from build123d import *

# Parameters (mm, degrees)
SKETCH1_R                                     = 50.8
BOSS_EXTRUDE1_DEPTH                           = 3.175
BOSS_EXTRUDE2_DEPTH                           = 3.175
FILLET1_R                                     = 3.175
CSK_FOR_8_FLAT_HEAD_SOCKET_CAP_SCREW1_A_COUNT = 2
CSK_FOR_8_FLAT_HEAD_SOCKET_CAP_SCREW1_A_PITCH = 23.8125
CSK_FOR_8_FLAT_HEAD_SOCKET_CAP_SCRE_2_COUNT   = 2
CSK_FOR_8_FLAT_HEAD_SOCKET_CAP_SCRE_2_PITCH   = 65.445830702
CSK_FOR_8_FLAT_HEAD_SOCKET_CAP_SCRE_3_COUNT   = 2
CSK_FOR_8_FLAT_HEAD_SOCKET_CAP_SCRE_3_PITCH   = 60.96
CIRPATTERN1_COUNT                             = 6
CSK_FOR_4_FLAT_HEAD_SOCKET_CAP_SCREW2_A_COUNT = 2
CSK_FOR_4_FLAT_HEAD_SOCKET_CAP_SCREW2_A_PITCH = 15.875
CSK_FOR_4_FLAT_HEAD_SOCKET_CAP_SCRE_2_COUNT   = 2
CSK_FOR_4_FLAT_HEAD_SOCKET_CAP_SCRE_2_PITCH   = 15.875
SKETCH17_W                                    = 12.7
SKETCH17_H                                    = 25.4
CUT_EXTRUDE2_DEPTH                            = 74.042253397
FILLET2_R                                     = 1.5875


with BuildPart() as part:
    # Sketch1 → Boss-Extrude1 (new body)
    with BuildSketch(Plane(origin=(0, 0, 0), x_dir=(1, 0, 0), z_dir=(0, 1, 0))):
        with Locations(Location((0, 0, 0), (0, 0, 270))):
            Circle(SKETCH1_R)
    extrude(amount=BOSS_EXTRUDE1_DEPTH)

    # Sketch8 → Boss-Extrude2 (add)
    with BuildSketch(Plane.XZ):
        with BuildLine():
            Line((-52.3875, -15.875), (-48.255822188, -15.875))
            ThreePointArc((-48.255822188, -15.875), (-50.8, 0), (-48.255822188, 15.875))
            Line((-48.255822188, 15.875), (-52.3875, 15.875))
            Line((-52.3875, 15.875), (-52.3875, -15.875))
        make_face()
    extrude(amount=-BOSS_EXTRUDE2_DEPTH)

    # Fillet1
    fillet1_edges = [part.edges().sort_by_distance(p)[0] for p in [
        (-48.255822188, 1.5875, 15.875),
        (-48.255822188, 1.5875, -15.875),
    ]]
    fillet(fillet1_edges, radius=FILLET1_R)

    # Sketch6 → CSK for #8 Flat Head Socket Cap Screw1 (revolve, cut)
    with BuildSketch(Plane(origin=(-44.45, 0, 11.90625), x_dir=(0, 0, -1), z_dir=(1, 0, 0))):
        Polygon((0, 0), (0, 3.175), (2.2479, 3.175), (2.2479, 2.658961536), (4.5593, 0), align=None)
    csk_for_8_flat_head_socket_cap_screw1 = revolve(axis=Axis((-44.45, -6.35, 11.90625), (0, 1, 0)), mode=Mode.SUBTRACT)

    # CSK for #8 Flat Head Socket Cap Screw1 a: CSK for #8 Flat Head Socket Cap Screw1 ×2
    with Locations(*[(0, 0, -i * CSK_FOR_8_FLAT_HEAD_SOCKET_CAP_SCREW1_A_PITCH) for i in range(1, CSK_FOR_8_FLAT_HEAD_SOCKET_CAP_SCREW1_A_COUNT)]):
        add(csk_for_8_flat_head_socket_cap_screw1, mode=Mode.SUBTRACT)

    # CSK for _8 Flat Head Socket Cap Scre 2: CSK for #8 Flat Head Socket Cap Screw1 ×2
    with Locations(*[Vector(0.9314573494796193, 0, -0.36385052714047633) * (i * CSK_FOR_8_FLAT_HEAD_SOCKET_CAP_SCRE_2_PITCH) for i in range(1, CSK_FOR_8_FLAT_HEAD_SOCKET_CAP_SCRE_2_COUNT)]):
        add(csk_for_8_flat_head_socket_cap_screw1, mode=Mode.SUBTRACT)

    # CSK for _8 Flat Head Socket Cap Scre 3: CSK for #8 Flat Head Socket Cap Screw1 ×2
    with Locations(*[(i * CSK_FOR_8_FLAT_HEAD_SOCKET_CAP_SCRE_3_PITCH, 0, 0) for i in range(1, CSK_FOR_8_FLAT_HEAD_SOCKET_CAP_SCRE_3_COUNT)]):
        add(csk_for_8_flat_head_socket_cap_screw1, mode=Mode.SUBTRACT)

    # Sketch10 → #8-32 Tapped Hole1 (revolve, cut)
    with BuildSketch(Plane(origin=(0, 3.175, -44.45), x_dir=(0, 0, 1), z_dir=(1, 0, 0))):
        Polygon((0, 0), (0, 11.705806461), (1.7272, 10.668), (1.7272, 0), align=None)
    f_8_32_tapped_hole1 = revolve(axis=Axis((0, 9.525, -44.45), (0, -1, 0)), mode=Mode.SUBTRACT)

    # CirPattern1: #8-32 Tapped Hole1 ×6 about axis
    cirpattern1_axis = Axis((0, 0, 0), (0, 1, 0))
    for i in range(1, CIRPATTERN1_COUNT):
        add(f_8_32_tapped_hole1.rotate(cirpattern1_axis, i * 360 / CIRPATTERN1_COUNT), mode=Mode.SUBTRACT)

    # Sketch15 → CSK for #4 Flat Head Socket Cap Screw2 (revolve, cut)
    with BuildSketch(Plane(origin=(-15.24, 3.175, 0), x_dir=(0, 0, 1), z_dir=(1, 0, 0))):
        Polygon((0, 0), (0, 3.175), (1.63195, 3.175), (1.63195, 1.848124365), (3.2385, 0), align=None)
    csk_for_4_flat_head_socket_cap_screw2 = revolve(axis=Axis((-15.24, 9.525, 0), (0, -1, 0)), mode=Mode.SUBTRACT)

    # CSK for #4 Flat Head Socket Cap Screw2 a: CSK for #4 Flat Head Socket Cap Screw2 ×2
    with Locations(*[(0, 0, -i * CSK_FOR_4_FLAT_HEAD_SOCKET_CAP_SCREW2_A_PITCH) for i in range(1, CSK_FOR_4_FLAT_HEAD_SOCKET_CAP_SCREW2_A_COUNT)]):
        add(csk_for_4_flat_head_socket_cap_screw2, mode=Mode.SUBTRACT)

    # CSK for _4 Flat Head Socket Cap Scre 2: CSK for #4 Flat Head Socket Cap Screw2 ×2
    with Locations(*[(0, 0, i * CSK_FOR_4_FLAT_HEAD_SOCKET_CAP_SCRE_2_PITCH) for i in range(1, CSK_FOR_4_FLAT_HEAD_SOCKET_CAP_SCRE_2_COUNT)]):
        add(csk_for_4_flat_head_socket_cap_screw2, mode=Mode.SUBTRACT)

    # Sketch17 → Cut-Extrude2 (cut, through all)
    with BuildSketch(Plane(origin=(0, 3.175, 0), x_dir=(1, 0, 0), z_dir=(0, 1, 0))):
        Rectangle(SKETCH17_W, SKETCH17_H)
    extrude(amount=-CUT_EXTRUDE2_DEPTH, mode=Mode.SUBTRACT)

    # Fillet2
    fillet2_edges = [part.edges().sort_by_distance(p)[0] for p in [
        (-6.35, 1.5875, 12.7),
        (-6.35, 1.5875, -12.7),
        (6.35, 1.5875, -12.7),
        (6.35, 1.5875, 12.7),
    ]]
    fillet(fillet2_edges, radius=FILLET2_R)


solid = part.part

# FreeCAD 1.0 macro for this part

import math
import FreeCAD as App
import Part
import Sketcher

V = App.Vector
Q = App.Units.Quantity


def edges_at(feature, points):
    """Names of the edges that pass closest to the given points."""
    edges = feature.Shape.Edges
    near = lambda p: min(range(len(edges)), key=lambda i: edges[i].distToShape(Part.Vertex(*p))[0])
    return sorted({f"Edge{near(p) + 1}" for p in points})

doc = App.newDocument("Part")
params = doc.addObject("Spreadsheet::Sheet", "Params")
for row, (alias, value) in enumerate([
    ("sketch1_diameter", "4 in"),
    ("pad1_length", "0.125 in"),
    ("sketch2_radius", "2 in"),
    ("sketch2_height", "1.25 in"),
    ("pad2_length", "0.125 in"),
    ("fillet_radius", "0.125 in"),
    ("sketch3_width", "0.125 in"),
    ("groove_angle", "360 deg"),
    ("linearpattern_pitch", "0.9375 in"),
    ("linearpattern2_pitch", "65.445831 mm"),
    ("linearpattern3_pitch", "2.4 in"),
    ("sketch4_width", "0.42 in"),
    ("sketch4_height", "0.068 in"),
    ("groove2_angle", "360 deg"),
    ("sketch5_width", "0.125 in"),
    ("groove3_angle", "360 deg"),
    ("linearpattern4_pitch", "0.625 in"),
    ("linearpattern5_pitch", "0.625 in"),
    ("sketch6_height", "1 in"),
    ("sketch6_width", "0.5 in"),
    ("fillet2_radius", "0.0625 in"),
], start=1):
    params.set(f"A{row}", alias)
    params.set(f"B{row}", "=" + value)
    params.setAlias(f"B{row}", alias)

body = doc.addObject("PartDesign::Body", "Body")

sketch1 = doc.addObject("Sketcher::SketchObject", "Sketch")
body.addObject(sketch1)
sketch1.AttachmentSupport = (doc.XZ_Plane, [""])
sketch1.MapMode = "FlatFace"
sketch1.addGeometry(Part.Circle(V(0, 0, 0), V(0, 0, 1), 51), False)
sketch1.addConstraint([
    Sketcher.Constraint("Coincident", 0, 3, -1, 1),
    Sketcher.Constraint("Diameter", 0, Q("4 in")),
])
sketch1.setExpression("Constraints[1]", "Params.sketch1_diameter")
pad1 = doc.addObject("PartDesign::Pad", "Pad")
body.addObject(pad1)
pad1.Profile = sketch1
pad1.setExpression("Length", "Params.pad1_length")
pad1.Reversed = True

sketch2 = doc.addObject("Sketcher::SketchObject", "Sketch001")
body.addObject(sketch2)
sketch2.AttachmentSupport = (doc.XZ_Plane, [""])
sketch2.MapMode = "FlatFace"
sketch2.addGeometry([
    Part.LineSegment(V(-52.4, -15.9, 0), V(-48.3, -15.9, 0)),
    Part.ArcOfCircle(Part.Circle(V(0, 0, 0), V(0, 0, 1), 50.8), math.radians(162), math.radians(198)),
    Part.LineSegment(V(-48.3, 15.9, 0), V(-52.4, 15.9, 0)),
    Part.LineSegment(V(-52.4, 15.9, 0), V(-52.4, -15.9, 0)),
], False)
sketch2.addConstraint([
    Sketcher.Constraint("Coincident", 0, 2, 1, 2),
    Sketcher.Constraint("Coincident", 1, 1, 2, 1),
    Sketcher.Constraint("Coincident", 2, 2, 3, 1),
    Sketcher.Constraint("Coincident", 3, 2, 0, 1),
    Sketcher.Constraint("Horizontal", 0),
    Sketcher.Constraint("Horizontal", 2),
    Sketcher.Constraint("Vertical", 3),
    Sketcher.Constraint("Coincident", 1, 3, -1, 1),
    Sketcher.Constraint("Vertical", 0, 2, 1, 1),
    Sketcher.Constraint("Radius", 1, Q("2 in")),
    Sketcher.Constraint("DistanceY", 3, 2, 3, 1, Q("1.25 in")),
    Sketcher.Constraint("DistanceX", 2, 2, -1, 1, Q("2.0625 in")),
])
sketch2.setExpression("Constraints[9]", "Params.sketch2_radius")
sketch2.setExpression("Constraints[10]", "Params.sketch2_height")
pad2 = doc.addObject("PartDesign::Pad", "Pad001")
body.addObject(pad2)
pad2.Profile = sketch2
pad2.setExpression("Length", "Params.pad2_length")
pad2.Reversed = True
doc.recompute()

fillet = doc.addObject("PartDesign::Fillet", "Fillet")
body.addObject(fillet)
fillet.Base = (pad2, edges_at(pad2, [(-48.256, 1.587, 15.875), (-48.256, 1.587, -15.875)]))
fillet.setExpression("Radius", "Params.fillet_radius")

sketch3 = doc.addObject("Sketcher::SketchObject", "Sketch002")
body.addObject(sketch3)
sketch3.AttachmentSupport = (doc.YZ_Plane, [""])
sketch3.MapMode = "FlatFace"
sketch3.AttachmentOffset = App.Placement(V(0, 0, -1.75 * 25.4), App.Rotation())
sketch3.addGeometry([
    Part.LineSegment(V(3.2, 11.9, 0), V(0, 11.9, 0)),
    Part.LineSegment(V(0, 11.9, 0), V(0, 7.3, 0)),
    Part.LineSegment(V(0, 7.3, 0), V(2.7, 9.7, 0)),
    Part.LineSegment(V(2.7, 9.7, 0), V(3.2, 9.7, 0)),
    Part.LineSegment(V(3.2, 9.7, 0), V(3.2, 11.9, 0)),
], False)
sketch3.addGeometry(Part.LineSegment(V(0, 11.9, 0), V(3.2, 11.9, 0)), True)
sketch3.addConstraint([
    Sketcher.Constraint("Coincident", 0, 2, 1, 1),
    Sketcher.Constraint("Coincident", 1, 2, 2, 1),
    Sketcher.Constraint("Coincident", 2, 2, 3, 1),
    Sketcher.Constraint("Coincident", 3, 2, 4, 1),
    Sketcher.Constraint("Coincident", 4, 2, 0, 1),
    Sketcher.Constraint("Horizontal", 0),
    Sketcher.Constraint("Vertical", 1),
    Sketcher.Constraint("Horizontal", 3),
    Sketcher.Constraint("Vertical", 4),
    Sketcher.Constraint("Horizontal", 5),
    Sketcher.Constraint("Coincident", 5, 1, 0, 2),
    Sketcher.Constraint("PointOnObject", 0, 2, -2),
    Sketcher.Constraint("Vertical", 3, 2, 5, 2),
    Sketcher.Constraint("Angle", 2, Q("41 deg")),
    Sketcher.Constraint("DistanceX", 0, 2, 0, 1, Q("0.125 in")),
    Sketcher.Constraint("DistanceY", 1, 2, 1, 1, Q("0.1795 in")),
    Sketcher.Constraint("DistanceY", 4, 1, 4, 2, Q("0.0885 in")),
    Sketcher.Constraint("DistanceY", -1, 1, 0, 2, Q("0.46875 in")),
])
sketch3.setExpression("Constraints[14]", "Params.sketch3_width")
groove = doc.addObject("PartDesign::Groove", "Groove")
body.addObject(groove)
groove.Profile = sketch3
groove.ReferenceAxis = (sketch3, ["Axis0"])
groove.setExpression("Angle", "Params.groove_angle")
doc.recompute()

linearpattern = doc.addObject("PartDesign::LinearPattern", "LinearPattern")
body.addObject(linearpattern)
linearpattern.Originals = [groove]
linearpattern.Direction = (doc.Z_Axis, [""])
linearpattern.Mode = "offset"
linearpattern.setExpression("Offset", "Params.linearpattern_pitch")
linearpattern.Occurrences = 2
linearpattern.Reversed = True
body.Tip = linearpattern
doc.recompute()

datumline = doc.addObject("PartDesign::Line", "DatumLine")
body.addObject(datumline)
datumline.Placement = App.Placement(V(0, 0, 0), App.Rotation(V(0, 0, 1), V(0.931457349, 0, -0.363850527)))
linearpattern2 = doc.addObject("PartDesign::LinearPattern", "LinearPattern001")
body.addObject(linearpattern2)
linearpattern2.Originals = [groove]
linearpattern2.Direction = (datumline, [""])
linearpattern2.Mode = "offset"
linearpattern2.setExpression("Offset", "Params.linearpattern2_pitch")
linearpattern2.Occurrences = 2
body.Tip = linearpattern2
doc.recompute()

linearpattern3 = doc.addObject("PartDesign::LinearPattern", "LinearPattern002")
body.addObject(linearpattern3)
linearpattern3.Originals = [groove]
linearpattern3.Direction = (doc.X_Axis, [""])
linearpattern3.Mode = "offset"
linearpattern3.setExpression("Offset", "Params.linearpattern3_pitch")
linearpattern3.Occurrences = 2
body.Tip = linearpattern3

sketch4 = doc.addObject("Sketcher::SketchObject", "Sketch003")
body.addObject(sketch4)
sketch4.AttachmentSupport = (doc.YZ_Plane, [""])
sketch4.MapMode = "FlatFace"
sketch4.addGeometry([
    Part.LineSegment(V(-8.5, -44.5, 0), V(3.2, -44.5, 0)),
    Part.LineSegment(V(3.2, -44.5, 0), V(3.2, -42.7, 0)),
    Part.LineSegment(V(3.2, -42.7, 0), V(-7.5, -42.7, 0)),
    Part.LineSegment(V(-7.5, -42.7, 0), V(-8.5, -44.5, 0)),
], False)
sketch4.addGeometry(Part.LineSegment(V(3.2, -44.5, 0), V(-8.5, -44.5, 0)), True)
sketch4.addConstraint([
    Sketcher.Constraint("Coincident", 0, 2, 1, 1),
    Sketcher.Constraint("Coincident", 1, 2, 2, 1),
    Sketcher.Constraint("Coincident", 2, 2, 3, 1),
    Sketcher.Constraint("Coincident", 3, 2, 0, 1),
    Sketcher.Constraint("Horizontal", 0),
    Sketcher.Constraint("Vertical", 1),
    Sketcher.Constraint("Horizontal", 2),
    Sketcher.Constraint("Horizontal", 4),
    Sketcher.Constraint("Coincident", 4, 1, 0, 2),
    Sketcher.Constraint("Equal", 0, 4),
    Sketcher.Constraint("Angle", 3, Q("-121 deg")),
    Sketcher.Constraint("DistanceX", 2, 2, 2, 1, Q("0.42 in")),
    Sketcher.Constraint("DistanceY", 1, 1, 1, 2, Q("0.068 in")),
    Sketcher.Constraint("DistanceY", 0, 2, -1, 1, Q("1.75 in")),
    Sketcher.Constraint("DistanceX", -1, 1, 0, 2, Q("0.125 in")),
])
sketch4.setExpression("Constraints[11]", "Params.sketch4_width")
sketch4.setExpression("Constraints[12]", "Params.sketch4_height")
groove2 = doc.addObject("PartDesign::Groove", "Groove001")
body.addObject(groove2)
groove2.Profile = sketch4
groove2.ReferenceAxis = (sketch4, ["Axis0"])
groove2.setExpression("Angle", "Params.groove2_angle")
doc.recompute()

polarpattern = doc.addObject("PartDesign::PolarPattern", "PolarPattern")
body.addObject(polarpattern)
polarpattern.Originals = [groove2]
polarpattern.Axis = (doc.Y_Axis, [""])
polarpattern.Angle = 360
polarpattern.Occurrences = 6
body.Tip = polarpattern

sketch5 = doc.addObject("Sketcher::SketchObject", "Sketch004")
body.addObject(sketch5)
sketch5.AttachmentSupport = (doc.YZ_Plane, [""])
sketch5.MapMode = "FlatFace"
sketch5.AttachmentOffset = App.Placement(V(0, 0, -0.6 * 25.4), App.Rotation())
sketch5.addGeometry([
    Part.LineSegment(V(0, 0, 0), V(3.2, 0, 0)),
    Part.LineSegment(V(3.2, 0, 0), V(3.2, 3.2, 0)),
    Part.LineSegment(V(3.2, 3.2, 0), V(1.3, 1.6, 0)),
    Part.LineSegment(V(1.3, 1.6, 0), V(0, 1.6, 0)),
    Part.LineSegment(V(0, 1.6, 0), V(0, 0, 0)),
], False)
sketch5.addConstraint([
    Sketcher.Constraint("Coincident", 0, 2, 1, 1),
    Sketcher.Constraint("Coincident", 1, 2, 2, 1),
    Sketcher.Constraint("Coincident", 2, 2, 3, 1),
    Sketcher.Constraint("Coincident", 3, 2, 4, 1),
    Sketcher.Constraint("Coincident", 4, 2, 0, 1),
    Sketcher.Constraint("Horizontal", 0),
    Sketcher.Constraint("Vertical", 1),
    Sketcher.Constraint("Horizontal", 3),
    Sketcher.Constraint("Vertical", 4),
    Sketcher.Constraint("Coincident", 4, 2, -1, 1),
    Sketcher.Constraint("Angle", 2, Q("-139 deg")),
    Sketcher.Constraint("DistanceX", 0, 1, 0, 2, Q("0.125 in")),
    Sketcher.Constraint("DistanceY", 1, 1, 1, 2, Q("0.1275 in")),
    Sketcher.Constraint("DistanceY", 4, 2, 4, 1, 1.63195),
])
sketch5.setExpression("Constraints[11]", "Params.sketch5_width")
groove3 = doc.addObject("PartDesign::Groove", "Groove002")
body.addObject(groove3)
groove3.Profile = sketch5
groove3.ReferenceAxis = (sketch5, ["H_Axis"])
groove3.setExpression("Angle", "Params.groove3_angle")
doc.recompute()

linearpattern4 = doc.addObject("PartDesign::LinearPattern", "LinearPattern003")
body.addObject(linearpattern4)
linearpattern4.Originals = [groove3]
linearpattern4.Direction = (doc.Z_Axis, [""])
linearpattern4.Mode = "offset"
linearpattern4.setExpression("Offset", "Params.linearpattern4_pitch")
linearpattern4.Occurrences = 2
linearpattern4.Reversed = True
body.Tip = linearpattern4
doc.recompute()

linearpattern5 = doc.addObject("PartDesign::LinearPattern", "LinearPattern004")
body.addObject(linearpattern5)
linearpattern5.Originals = [groove3]
linearpattern5.Direction = (doc.Z_Axis, [""])
linearpattern5.Mode = "offset"
linearpattern5.setExpression("Offset", "Params.linearpattern5_pitch")
linearpattern5.Occurrences = 2
body.Tip = linearpattern5

sketch6 = doc.addObject("Sketcher::SketchObject", "Sketch005")
body.addObject(sketch6)
sketch6.AttachmentSupport = (doc.XZ_Plane, [""])
sketch6.MapMode = "FlatFace"
sketch6.AttachmentOffset = App.Placement(V(0, 0, -0.125 * 25.4), App.Rotation())
sketch6.addGeometry([
    Part.LineSegment(V(-6, -13, 0), V(-6, 13, 0)),
    Part.LineSegment(V(-6, 13, 0), V(6, 13, 0)),
    Part.LineSegment(V(6, 13, 0), V(6, -13, 0)),
    Part.LineSegment(V(6, -13, 0), V(-6, -13, 0)),
], False)
sketch6.addConstraint([
    Sketcher.Constraint("Coincident", 0, 2, 1, 1),
    Sketcher.Constraint("Coincident", 1, 2, 2, 1),
    Sketcher.Constraint("Coincident", 2, 2, 3, 1),
    Sketcher.Constraint("Coincident", 3, 2, 0, 1),
    Sketcher.Constraint("Vertical", 0),
    Sketcher.Constraint("Horizontal", 1),
    Sketcher.Constraint("Vertical", 2),
    Sketcher.Constraint("Horizontal", 3),
    Sketcher.Constraint("Symmetric", 0, 2, 2, 2, -1, 1),
    Sketcher.Constraint("DistanceY", 0, 1, 0, 2, Q("1 in")),
    Sketcher.Constraint("DistanceX", 1, 1, 1, 2, Q("0.5 in")),
])
sketch6.setExpression("Constraints[9]", "Params.sketch6_height")
sketch6.setExpression("Constraints[10]", "Params.sketch6_width")
pocket1 = doc.addObject("PartDesign::Pocket", "Pocket")
body.addObject(pocket1)
pocket1.Profile = sketch6
pocket1.Type = "ThroughAll"
pocket1.Reversed = True
doc.recompute()

fillet2 = doc.addObject("PartDesign::Fillet", "Fillet001")
body.addObject(fillet2)
fillet2.Base = (pocket1, edges_at(pocket1, [
    (-6.35, 1.587, 12.7),
    (-6.35, 1.587, -12.7),
    (6.35, 1.587, -12.7),
    (6.35, 1.587, 12.7),
]))
fillet2.setExpression("Radius", "Params.fillet2_radius")

doc.recompute()
